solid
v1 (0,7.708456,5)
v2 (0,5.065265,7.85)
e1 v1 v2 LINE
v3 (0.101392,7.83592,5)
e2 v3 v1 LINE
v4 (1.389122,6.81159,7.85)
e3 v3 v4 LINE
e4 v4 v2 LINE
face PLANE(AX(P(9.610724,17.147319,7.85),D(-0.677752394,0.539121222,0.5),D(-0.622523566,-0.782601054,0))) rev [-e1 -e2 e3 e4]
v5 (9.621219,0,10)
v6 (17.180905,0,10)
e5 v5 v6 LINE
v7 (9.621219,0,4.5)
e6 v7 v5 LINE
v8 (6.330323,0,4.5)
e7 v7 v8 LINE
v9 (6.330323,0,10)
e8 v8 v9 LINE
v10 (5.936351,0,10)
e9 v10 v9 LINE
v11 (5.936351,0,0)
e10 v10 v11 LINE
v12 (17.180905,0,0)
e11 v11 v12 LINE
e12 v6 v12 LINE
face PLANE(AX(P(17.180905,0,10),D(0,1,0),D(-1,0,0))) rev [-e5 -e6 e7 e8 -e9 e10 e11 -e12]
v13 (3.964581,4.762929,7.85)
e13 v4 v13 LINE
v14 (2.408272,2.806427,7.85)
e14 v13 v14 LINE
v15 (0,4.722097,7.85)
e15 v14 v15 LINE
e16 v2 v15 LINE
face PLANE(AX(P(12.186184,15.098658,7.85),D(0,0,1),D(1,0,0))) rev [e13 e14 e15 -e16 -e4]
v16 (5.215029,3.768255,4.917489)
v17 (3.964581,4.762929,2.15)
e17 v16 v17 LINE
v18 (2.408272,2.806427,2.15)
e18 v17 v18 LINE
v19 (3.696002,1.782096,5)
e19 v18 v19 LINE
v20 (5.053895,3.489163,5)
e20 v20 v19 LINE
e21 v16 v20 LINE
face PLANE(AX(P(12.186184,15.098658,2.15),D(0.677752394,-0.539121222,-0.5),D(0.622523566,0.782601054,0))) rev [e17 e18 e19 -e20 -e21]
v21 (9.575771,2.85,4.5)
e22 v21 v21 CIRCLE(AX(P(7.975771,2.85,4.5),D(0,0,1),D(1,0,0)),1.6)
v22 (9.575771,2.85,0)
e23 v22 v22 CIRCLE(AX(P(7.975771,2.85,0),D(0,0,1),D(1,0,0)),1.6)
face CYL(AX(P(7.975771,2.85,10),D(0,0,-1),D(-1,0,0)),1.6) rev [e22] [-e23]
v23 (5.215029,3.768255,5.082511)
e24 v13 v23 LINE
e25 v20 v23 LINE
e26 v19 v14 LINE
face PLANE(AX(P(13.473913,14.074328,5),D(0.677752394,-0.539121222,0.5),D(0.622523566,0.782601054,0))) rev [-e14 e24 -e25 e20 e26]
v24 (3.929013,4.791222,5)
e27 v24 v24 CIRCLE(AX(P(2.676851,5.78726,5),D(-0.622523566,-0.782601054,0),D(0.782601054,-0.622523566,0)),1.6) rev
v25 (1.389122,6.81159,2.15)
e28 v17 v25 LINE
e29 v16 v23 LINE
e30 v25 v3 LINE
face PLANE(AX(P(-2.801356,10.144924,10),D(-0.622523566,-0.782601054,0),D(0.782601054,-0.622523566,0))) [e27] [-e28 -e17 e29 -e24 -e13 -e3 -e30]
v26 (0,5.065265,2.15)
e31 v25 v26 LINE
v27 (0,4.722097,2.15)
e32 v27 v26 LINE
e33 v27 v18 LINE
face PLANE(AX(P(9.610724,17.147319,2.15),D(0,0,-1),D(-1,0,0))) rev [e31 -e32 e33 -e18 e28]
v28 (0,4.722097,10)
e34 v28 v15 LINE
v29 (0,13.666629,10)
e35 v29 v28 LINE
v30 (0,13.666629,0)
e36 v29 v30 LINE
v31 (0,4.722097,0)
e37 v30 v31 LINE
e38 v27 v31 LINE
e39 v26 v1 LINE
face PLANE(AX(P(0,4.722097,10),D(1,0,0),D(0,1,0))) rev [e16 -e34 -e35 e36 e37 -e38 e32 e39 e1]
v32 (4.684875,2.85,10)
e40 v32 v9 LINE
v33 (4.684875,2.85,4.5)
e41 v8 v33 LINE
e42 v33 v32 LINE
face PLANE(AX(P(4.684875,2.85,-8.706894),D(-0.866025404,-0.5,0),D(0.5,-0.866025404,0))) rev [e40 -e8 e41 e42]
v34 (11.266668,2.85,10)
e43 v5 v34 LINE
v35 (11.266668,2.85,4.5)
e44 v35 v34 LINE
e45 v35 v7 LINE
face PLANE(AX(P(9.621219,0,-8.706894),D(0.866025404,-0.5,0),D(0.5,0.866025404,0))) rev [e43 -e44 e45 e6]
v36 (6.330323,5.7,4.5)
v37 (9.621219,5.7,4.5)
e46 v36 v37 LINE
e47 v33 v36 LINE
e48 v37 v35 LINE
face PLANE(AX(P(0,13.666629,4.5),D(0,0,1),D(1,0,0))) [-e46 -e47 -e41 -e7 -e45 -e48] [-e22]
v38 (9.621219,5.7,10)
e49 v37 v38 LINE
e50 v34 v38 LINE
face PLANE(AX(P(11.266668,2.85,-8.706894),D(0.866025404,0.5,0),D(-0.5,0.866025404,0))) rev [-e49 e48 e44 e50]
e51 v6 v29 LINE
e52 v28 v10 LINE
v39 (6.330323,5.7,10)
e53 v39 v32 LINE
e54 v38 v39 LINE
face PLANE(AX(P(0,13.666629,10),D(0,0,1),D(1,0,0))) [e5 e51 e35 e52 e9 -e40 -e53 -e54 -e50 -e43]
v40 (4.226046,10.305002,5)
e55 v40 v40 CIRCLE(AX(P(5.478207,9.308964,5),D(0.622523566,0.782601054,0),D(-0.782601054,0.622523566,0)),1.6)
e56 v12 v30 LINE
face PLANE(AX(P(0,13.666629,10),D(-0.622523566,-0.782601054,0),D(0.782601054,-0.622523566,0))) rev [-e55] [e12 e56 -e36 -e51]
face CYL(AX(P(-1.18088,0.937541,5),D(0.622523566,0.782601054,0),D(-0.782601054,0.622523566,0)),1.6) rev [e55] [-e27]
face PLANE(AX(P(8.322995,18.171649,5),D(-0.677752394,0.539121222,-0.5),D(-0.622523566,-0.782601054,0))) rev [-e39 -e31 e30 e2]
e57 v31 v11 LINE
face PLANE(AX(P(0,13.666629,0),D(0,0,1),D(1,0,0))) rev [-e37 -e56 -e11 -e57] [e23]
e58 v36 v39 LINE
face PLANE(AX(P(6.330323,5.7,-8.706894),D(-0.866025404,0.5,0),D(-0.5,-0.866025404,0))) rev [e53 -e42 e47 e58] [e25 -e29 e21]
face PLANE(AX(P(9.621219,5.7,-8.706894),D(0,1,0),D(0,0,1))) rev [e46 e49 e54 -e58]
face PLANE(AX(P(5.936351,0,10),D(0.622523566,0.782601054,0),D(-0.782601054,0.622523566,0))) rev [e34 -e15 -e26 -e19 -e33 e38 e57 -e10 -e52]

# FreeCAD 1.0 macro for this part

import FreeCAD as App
import Part
import Sketcher

V = App.Vector
Q = App.Units.Quantity


def add_polygon(sketch, points):
    """Adds a closed chain of lines whose ends are joined by coincident constraints."""
    first, n = sketch.GeometryCount, len(points)
    for a, b in zip(points, points[1:] + points[:1]):
        sketch.addGeometry(Part.LineSegment(App.Vector(*a, 0), App.Vector(*b, 0)), False)
    for i in range(n):
        sketch.addConstraint(Sketcher.Constraint("Coincident", first + i, 2, first + (i + 1) % n, 1))

doc = App.newDocument("Part")
body = doc.addObject("PartDesign::Body", "Body")

# Sketch on XY plane
sketch1 = doc.addObject("Sketcher::SketchObject", "Sketch")
body.addObject(sketch1)
sketch1.AttachmentSupport = (doc.XY_Plane, [""])
sketch1.MapMode = "FlatFace"
add_polygon(sketch1, [(5.9, 0), (17.2, 0), (0, 13.7), (0, 4.7)])  # lines 0-3
sketch1.addGeometry(Part.Circle(V(8, 2.9, 0), V(0, 0, 1), 1.6), False)  # 4
sketch1.addConstraint(Sketcher.Constraint("Horizontal", 0))
sketch1.addConstraint(Sketcher.Constraint("Vertical", 2))
sketch1.addConstraint(Sketcher.Constraint("PointOnObject", 0, 2, -1))
sketch1.addConstraint(Sketcher.Constraint("PointOnObject", 1, 2, -2))
sketch1.addConstraint(Sketcher.Constraint("Parallel", 1, 3))
sketch1.addConstraint(Sketcher.Constraint("Diameter", 4, 3.2))
sketch1.addConstraint(Sketcher.Constraint("DistanceY", -1, 1, 4, 3, 2.85))
sketch1.addConstraint(Sketcher.Constraint("DistanceY", 2, 2, 2, 1, 8.944532))
sketch1.addConstraint(Sketcher.Constraint("Distance", 3, 7.585412))
sketch1.addConstraint(Sketcher.Constraint("DistanceX", 0, 1, 0, 2, 11.244554))
sketch1.addConstraint(Sketcher.Constraint("DistanceX", -1, 1, 4, 3, 7.975771))
pad1 = doc.addObject("PartDesign::Pad", "Pad")
body.addObject(pad1)
pad1.Profile = sketch1
pad1.Length = 10

# Sketch on XY plane
sketch2 = doc.addObject("Sketcher::SketchObject", "Sketch001")
body.addObject(sketch2)
sketch2.AttachmentSupport = (doc.XY_Plane, [""])
sketch2.MapMode = "FlatFace"
sketch2.AttachmentOffset = App.Placement(V(0, 0, 10), App.Rotation())
add_polygon(sketch2, [(6.3, 0), (9.6, 0), (11.3, 2.9), (9.6, 5.7), (6.3, 5.7), (4.7, 2.9)])  # lines 0-5
sketch2.addConstraint(Sketcher.Constraint("Horizontal", 0))
sketch2.addConstraint(Sketcher.Constraint("Horizontal", 3))
sketch2.addConstraint(Sketcher.Constraint("PointOnObject", 0, 2, -1))
sketch2.addConstraint(Sketcher.Constraint("Parallel", 1, 4))
sketch2.addConstraint(Sketcher.Constraint("Parallel", 2, 5))
sketch2.addConstraint(Sketcher.Constraint("Horizontal", 1, 2, 4, 2))
sketch2.addConstraint(Sketcher.Constraint("Vertical", 0, 2, 2, 2))
sketch2.addConstraint(Sketcher.Constraint("Vertical", 3, 2, 5, 2))
sketch2.addConstraint(Sketcher.Constraint("Angle", 1, Q("60 deg")))
sketch2.addConstraint(Sketcher.Constraint("DistanceY", -1, 1, 2, 2, 5.7))
sketch2.addConstraint(Sketcher.Constraint("DistanceX", 0, 1, 0, 2, 3.290897))
sketch2.addConstraint(Sketcher.Constraint("DistanceX", -1, 1, 0, 2, 9.621219))
pocket1 = doc.addObject("PartDesign::Pocket", "Pocket")
body.addObject(pocket1)
pocket1.Profile = sketch2
pocket1.Length = 5.5

# Sketch on an angled plane
sketch3 = doc.addObject("Sketcher::SketchObject", "Sketch002")
body.addObject(sketch3)
sketch3.Placement = App.Placement(V(6.658212, 8.370324, 0), App.Rotation(V(0.782601054, -0.622523566, 0), V(0, 0, -1), V(0.622523566, 0.782601054, 0), "ZXY"))
sketch3.addGeometry(Part.Circle(V(-1.5, -5, 0), V(0, 0, 1), 1.6), False)
sketch3.addConstraint(Sketcher.Constraint("Diameter", 0, 3.2))
sketch3.addConstraint(Sketcher.Constraint("DistanceY", 0, 3, -1, 1, 5.0))
sketch3.addConstraint(Sketcher.Constraint("DistanceX", 0, 3, -1, 1, 1.507799))
pocket2 = doc.addObject("PartDesign::Pocket", "Pocket001")
body.addObject(pocket2)
pocket2.Profile = sketch3
pocket2.Type = "UpToFirst"

# Sketch on an angled plane
sketch4 = doc.addObject("Sketcher::SketchObject", "Sketch003")
body.addObject(sketch4)
sketch4.Placement = App.Placement(V(2.300547, 2.892117, 0), App.Rotation(V(0.782601054, -0.622523566, 0), V(0, 0, 1), V(-0.622523566, -0.782601054, 0), "ZXY"))
add_polygon(sketch4, [(1.8, 5), (0.1, 7.8), (-3.2, 7.8), (-4.8, 5), (-3.2, 2.1), (0.1, 2.1)])  # lines 0-5
sketch4.addConstraint(Sketcher.Constraint("Horizontal", 1))
sketch4.addConstraint(Sketcher.Constraint("Horizontal", 4))
sketch4.addConstraint(Sketcher.Constraint("Parallel", 0, 3))
sketch4.addConstraint(Sketcher.Constraint("Parallel", 2, 5))
sketch4.addConstraint(Sketcher.Constraint("Horizontal", 2, 2, 5, 2))
sketch4.addConstraint(Sketcher.Constraint("Vertical", 1, 2, 3, 2))
sketch4.addConstraint(Sketcher.Constraint("Vertical", 0, 2, 4, 2))
sketch4.addConstraint(Sketcher.Constraint("Angle", 0, Q("120 deg")))
sketch4.addConstraint(Sketcher.Constraint("DistanceY", -1, 1, 2, 2, 5.0))
sketch4.addConstraint(Sketcher.Constraint("DistanceY", 3, 2, 1, 2, 5.7))
sketch4.addConstraint(Sketcher.Constraint("DistanceX", 1, 2, 1, 1, 3.290897))
sketch4.addConstraint(Sketcher.Constraint("DistanceX", -1, 1, 0, 2, 0.13765))
pocket3 = doc.addObject("PartDesign::Pocket", "Pocket002")
body.addObject(pocket3)
pocket3.Profile = sketch4
pocket3.Length = 2.5

doc.recompute()
